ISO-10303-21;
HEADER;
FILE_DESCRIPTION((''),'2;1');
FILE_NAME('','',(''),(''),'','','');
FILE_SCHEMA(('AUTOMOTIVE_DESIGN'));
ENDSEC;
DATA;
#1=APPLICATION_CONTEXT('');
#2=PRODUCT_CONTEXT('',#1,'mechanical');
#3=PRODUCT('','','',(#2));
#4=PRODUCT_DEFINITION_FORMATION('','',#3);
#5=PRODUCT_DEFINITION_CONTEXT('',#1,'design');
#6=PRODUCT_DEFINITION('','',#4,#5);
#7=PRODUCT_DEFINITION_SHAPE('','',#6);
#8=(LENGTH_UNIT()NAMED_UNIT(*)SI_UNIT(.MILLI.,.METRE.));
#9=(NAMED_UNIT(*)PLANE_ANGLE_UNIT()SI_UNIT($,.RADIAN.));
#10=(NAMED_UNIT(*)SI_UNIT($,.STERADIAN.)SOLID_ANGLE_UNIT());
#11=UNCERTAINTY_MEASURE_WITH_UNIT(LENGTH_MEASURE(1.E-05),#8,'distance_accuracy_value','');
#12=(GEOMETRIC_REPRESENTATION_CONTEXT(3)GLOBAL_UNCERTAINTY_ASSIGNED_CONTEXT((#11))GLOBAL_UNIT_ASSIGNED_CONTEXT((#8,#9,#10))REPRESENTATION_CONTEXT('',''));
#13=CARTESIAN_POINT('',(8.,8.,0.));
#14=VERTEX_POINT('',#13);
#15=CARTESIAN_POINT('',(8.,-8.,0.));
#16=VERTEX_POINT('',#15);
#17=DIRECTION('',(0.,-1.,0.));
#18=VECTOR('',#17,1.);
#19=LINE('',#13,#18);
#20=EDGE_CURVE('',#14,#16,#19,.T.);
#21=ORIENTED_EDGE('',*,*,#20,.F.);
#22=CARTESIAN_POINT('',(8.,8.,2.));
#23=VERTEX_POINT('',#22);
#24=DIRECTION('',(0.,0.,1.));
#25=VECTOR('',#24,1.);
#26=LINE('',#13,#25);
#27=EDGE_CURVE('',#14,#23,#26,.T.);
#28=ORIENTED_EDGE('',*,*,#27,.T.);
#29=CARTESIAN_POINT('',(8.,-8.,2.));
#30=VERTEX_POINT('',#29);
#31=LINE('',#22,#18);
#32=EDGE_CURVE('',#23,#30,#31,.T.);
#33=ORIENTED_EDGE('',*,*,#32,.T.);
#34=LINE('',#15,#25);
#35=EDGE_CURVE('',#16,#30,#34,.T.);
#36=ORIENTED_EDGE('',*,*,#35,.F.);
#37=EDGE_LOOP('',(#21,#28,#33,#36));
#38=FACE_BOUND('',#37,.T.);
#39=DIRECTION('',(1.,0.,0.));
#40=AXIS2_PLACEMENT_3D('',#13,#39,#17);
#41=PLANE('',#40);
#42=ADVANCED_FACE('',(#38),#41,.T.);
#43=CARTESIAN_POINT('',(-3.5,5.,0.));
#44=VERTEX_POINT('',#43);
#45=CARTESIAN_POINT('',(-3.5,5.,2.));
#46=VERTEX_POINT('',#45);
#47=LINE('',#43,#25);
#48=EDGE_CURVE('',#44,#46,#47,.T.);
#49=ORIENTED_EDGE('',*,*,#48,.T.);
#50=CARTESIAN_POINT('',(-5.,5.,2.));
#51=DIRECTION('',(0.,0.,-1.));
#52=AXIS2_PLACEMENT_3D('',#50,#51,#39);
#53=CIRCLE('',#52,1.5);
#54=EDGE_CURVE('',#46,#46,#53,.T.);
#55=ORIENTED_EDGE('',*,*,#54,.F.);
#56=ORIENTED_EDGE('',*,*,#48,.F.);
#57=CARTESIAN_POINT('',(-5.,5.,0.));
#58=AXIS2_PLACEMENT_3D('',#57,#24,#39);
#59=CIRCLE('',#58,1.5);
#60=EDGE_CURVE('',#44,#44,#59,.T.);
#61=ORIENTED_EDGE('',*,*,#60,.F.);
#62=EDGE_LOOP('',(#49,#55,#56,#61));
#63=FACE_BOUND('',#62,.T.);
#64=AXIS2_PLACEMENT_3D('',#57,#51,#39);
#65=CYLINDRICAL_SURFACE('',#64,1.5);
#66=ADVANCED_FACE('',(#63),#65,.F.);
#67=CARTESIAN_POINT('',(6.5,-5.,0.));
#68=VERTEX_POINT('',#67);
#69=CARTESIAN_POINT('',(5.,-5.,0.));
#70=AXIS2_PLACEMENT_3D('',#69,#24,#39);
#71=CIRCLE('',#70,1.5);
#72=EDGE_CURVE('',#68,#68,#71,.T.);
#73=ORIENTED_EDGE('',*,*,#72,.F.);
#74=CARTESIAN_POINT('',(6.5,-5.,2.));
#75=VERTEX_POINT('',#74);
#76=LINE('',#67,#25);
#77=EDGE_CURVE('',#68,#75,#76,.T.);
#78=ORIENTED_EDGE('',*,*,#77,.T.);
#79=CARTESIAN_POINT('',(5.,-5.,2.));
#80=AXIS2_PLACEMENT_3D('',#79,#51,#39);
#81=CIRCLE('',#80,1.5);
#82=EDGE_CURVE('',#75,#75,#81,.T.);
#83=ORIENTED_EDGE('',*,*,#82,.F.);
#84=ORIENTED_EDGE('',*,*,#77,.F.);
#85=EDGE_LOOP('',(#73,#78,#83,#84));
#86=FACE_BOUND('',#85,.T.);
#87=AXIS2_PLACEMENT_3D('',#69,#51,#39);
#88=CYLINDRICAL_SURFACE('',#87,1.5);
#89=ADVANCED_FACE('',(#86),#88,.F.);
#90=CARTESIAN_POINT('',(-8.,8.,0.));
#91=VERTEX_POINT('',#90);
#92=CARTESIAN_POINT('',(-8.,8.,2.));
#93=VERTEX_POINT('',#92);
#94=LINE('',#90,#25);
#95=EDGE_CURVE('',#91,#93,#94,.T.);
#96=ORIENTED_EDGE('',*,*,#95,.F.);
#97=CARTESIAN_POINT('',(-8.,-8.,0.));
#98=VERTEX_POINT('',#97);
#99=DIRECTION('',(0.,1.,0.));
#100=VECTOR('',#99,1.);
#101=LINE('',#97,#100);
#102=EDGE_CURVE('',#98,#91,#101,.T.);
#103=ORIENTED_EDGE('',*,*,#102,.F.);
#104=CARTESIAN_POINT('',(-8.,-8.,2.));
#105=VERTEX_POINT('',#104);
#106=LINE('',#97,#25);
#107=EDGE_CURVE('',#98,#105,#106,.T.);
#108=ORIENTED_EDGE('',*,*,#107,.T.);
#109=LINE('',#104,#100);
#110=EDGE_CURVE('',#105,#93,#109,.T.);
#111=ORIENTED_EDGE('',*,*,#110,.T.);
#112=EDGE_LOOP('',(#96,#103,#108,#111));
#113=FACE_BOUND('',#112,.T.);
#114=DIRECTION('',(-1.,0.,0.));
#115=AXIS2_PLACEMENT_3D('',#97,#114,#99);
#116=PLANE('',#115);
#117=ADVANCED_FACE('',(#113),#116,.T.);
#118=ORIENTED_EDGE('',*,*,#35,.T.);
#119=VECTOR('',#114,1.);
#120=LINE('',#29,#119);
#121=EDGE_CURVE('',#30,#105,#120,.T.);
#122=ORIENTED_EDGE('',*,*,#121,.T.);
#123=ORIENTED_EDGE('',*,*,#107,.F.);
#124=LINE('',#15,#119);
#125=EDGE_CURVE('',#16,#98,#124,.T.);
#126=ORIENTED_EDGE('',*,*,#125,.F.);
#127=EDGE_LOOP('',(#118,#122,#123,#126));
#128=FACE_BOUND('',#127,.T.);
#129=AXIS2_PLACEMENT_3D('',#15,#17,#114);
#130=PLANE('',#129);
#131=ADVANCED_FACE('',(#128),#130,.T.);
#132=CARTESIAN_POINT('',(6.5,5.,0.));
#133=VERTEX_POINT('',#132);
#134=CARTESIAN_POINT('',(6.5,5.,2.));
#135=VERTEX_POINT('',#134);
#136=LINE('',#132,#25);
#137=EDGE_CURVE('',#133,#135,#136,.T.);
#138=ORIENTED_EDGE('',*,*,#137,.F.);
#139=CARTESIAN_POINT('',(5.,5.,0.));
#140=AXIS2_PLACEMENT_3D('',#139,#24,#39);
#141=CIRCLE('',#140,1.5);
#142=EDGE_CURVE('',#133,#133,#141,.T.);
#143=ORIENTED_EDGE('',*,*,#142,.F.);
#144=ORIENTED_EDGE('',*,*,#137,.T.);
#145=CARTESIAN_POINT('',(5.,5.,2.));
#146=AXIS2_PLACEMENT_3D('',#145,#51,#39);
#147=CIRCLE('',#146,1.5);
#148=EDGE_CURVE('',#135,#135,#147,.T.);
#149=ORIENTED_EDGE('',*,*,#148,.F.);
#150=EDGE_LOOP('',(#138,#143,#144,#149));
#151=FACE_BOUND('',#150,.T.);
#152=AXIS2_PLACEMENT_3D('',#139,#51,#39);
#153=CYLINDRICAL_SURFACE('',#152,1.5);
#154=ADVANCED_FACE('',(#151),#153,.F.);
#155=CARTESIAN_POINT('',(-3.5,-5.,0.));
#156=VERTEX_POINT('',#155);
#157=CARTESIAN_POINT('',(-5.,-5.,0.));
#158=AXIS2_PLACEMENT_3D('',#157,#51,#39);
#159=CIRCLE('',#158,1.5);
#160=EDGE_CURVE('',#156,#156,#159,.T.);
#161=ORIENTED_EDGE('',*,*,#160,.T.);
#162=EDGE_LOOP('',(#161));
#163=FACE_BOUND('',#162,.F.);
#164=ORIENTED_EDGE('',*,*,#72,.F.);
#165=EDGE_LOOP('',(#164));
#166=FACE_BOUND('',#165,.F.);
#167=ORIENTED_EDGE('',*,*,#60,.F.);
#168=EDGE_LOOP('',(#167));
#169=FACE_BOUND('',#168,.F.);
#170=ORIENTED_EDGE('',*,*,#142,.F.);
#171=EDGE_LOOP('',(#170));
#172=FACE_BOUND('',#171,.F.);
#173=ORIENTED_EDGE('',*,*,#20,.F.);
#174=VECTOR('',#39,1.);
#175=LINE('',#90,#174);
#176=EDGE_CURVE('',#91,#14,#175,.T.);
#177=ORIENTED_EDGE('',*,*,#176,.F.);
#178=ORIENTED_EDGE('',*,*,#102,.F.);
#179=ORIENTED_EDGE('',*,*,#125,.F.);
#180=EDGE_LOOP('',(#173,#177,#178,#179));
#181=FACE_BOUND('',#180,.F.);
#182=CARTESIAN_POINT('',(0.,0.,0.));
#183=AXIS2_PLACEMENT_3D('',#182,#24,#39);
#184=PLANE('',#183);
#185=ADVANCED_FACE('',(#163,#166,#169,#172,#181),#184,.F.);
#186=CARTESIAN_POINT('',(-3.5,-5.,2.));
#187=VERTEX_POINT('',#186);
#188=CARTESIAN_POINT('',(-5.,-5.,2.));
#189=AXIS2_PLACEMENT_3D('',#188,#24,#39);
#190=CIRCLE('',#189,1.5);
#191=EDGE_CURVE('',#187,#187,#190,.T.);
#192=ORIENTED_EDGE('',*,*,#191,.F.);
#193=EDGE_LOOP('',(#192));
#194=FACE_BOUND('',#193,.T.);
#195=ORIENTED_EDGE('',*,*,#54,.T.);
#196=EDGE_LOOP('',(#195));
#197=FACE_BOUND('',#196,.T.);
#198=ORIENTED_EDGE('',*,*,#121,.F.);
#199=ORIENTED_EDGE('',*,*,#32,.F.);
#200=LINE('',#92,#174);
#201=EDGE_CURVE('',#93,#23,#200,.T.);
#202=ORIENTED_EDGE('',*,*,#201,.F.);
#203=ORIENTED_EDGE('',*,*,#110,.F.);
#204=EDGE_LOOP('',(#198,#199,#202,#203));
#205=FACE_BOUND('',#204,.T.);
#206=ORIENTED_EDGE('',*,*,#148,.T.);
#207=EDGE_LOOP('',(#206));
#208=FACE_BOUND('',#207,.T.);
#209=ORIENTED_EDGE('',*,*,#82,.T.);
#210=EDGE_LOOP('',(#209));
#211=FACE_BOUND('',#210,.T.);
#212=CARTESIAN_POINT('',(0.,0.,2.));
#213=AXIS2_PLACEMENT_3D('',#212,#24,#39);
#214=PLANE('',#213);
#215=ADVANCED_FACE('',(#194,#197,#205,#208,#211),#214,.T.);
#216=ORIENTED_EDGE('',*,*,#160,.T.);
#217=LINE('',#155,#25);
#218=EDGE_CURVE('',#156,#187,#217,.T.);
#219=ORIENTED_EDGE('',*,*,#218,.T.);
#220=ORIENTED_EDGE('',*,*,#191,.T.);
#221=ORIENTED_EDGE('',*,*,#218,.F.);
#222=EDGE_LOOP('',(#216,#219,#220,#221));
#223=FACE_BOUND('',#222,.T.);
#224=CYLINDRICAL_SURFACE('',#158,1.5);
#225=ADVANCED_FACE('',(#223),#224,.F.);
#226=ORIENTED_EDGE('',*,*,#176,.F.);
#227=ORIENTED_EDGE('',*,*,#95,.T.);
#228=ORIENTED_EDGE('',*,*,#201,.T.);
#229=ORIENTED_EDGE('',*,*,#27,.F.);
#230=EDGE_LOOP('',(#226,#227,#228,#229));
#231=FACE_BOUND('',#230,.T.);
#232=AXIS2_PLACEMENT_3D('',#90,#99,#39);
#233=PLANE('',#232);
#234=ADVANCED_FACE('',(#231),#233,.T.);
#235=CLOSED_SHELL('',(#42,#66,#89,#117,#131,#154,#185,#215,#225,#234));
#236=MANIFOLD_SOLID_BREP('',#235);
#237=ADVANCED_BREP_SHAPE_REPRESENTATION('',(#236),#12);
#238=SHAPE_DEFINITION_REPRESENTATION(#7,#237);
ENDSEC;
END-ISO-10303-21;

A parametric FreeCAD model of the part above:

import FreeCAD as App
import Part
import Sketcher
Q = App.Units.Quantity

doc = App.newDocument("Part")
body = doc.addObject("PartDesign::Body", "Body")

# Sketch on XY plane
sketch1 = body.newObject("Sketcher::SketchObject", "Sketch")
sketch1.AttachmentSupport = (doc.getObject("XY_Plane"), [""])
sketch1.MapMode = "FlatFace"
sketch1.addGeometry([
    Part.LineSegment(App.Vector(8, 8, 0), App.Vector(-8, 8, 0)),  # 0
    Part.LineSegment(App.Vector(-8, 8, 0), App.Vector(-8, -8, 0)),  # 1
    Part.LineSegment(App.Vector(-8, -8, 0), App.Vector(8, -8, 0)),  # 2
    Part.LineSegment(App.Vector(8, -8, 0), App.Vector(8, 8, 0)),  # 3
    Part.Circle(App.Vector(-5, -5, 0), App.Vector(0, 0, 1), 1.5),  # 4
    Part.Circle(App.Vector(-5, 5, 0), App.Vector(0, 0, 1), 1.5),  # 5
    Part.Circle(App.Vector(5, 5, 0), App.Vector(0, 0, 1), 1.5),  # 6
    Part.Circle(App.Vector(5, -5, 0), App.Vector(0, 0, 1), 1.5),  # 7
], False)
sketch1.addConstraint([
    Sketcher.Constraint("Coincident", 0, 2, 1, 1),
    Sketcher.Constraint("Coincident", 1, 2, 2, 1),
    Sketcher.Constraint("Coincident", 2, 2, 3, 1),
    Sketcher.Constraint("Coincident", 3, 2, 0, 1),
    Sketcher.Constraint("Horizontal", 0),
    Sketcher.Constraint("Vertical", 1),
    Sketcher.Constraint("Horizontal", 2),
    Sketcher.Constraint("Vertical", 3),
    Sketcher.Constraint("Equal", 4, 5),
    Sketcher.Constraint("Equal", 5, 6),
    Sketcher.Constraint("Equal", 6, 7),
    Sketcher.Constraint("Symmetric", 4, 3, 6, 3, -1, 1),
    Sketcher.Constraint("Symmetric", 5, 3, 7, 3, -1, 1),
    Sketcher.Constraint("Symmetric", 0, 2, 2, 2, -1, 1),
    Sketcher.Constraint("Symmetric", 5, 3, 6, 3, -2),
    Sketcher.Constraint("Equal", 2, 1),
    Sketcher.Constraint("Diameter", 4, Q("3 mm")),
    Sketcher.Constraint("DistanceX", 0, 2, 0, 1, Q("16 mm")),
    Sketcher.Constraint("DistanceY", 4, 3, 5, 3, Q("10 mm")),
    Sketcher.Constraint("DistanceX", 5, 3, 6, 3, Q("10 mm")),
])
pad1 = body.newObject("PartDesign::Pad", "Pad")
pad1.Profile = sketch1
pad1.Length = 2

doc.recompute()
